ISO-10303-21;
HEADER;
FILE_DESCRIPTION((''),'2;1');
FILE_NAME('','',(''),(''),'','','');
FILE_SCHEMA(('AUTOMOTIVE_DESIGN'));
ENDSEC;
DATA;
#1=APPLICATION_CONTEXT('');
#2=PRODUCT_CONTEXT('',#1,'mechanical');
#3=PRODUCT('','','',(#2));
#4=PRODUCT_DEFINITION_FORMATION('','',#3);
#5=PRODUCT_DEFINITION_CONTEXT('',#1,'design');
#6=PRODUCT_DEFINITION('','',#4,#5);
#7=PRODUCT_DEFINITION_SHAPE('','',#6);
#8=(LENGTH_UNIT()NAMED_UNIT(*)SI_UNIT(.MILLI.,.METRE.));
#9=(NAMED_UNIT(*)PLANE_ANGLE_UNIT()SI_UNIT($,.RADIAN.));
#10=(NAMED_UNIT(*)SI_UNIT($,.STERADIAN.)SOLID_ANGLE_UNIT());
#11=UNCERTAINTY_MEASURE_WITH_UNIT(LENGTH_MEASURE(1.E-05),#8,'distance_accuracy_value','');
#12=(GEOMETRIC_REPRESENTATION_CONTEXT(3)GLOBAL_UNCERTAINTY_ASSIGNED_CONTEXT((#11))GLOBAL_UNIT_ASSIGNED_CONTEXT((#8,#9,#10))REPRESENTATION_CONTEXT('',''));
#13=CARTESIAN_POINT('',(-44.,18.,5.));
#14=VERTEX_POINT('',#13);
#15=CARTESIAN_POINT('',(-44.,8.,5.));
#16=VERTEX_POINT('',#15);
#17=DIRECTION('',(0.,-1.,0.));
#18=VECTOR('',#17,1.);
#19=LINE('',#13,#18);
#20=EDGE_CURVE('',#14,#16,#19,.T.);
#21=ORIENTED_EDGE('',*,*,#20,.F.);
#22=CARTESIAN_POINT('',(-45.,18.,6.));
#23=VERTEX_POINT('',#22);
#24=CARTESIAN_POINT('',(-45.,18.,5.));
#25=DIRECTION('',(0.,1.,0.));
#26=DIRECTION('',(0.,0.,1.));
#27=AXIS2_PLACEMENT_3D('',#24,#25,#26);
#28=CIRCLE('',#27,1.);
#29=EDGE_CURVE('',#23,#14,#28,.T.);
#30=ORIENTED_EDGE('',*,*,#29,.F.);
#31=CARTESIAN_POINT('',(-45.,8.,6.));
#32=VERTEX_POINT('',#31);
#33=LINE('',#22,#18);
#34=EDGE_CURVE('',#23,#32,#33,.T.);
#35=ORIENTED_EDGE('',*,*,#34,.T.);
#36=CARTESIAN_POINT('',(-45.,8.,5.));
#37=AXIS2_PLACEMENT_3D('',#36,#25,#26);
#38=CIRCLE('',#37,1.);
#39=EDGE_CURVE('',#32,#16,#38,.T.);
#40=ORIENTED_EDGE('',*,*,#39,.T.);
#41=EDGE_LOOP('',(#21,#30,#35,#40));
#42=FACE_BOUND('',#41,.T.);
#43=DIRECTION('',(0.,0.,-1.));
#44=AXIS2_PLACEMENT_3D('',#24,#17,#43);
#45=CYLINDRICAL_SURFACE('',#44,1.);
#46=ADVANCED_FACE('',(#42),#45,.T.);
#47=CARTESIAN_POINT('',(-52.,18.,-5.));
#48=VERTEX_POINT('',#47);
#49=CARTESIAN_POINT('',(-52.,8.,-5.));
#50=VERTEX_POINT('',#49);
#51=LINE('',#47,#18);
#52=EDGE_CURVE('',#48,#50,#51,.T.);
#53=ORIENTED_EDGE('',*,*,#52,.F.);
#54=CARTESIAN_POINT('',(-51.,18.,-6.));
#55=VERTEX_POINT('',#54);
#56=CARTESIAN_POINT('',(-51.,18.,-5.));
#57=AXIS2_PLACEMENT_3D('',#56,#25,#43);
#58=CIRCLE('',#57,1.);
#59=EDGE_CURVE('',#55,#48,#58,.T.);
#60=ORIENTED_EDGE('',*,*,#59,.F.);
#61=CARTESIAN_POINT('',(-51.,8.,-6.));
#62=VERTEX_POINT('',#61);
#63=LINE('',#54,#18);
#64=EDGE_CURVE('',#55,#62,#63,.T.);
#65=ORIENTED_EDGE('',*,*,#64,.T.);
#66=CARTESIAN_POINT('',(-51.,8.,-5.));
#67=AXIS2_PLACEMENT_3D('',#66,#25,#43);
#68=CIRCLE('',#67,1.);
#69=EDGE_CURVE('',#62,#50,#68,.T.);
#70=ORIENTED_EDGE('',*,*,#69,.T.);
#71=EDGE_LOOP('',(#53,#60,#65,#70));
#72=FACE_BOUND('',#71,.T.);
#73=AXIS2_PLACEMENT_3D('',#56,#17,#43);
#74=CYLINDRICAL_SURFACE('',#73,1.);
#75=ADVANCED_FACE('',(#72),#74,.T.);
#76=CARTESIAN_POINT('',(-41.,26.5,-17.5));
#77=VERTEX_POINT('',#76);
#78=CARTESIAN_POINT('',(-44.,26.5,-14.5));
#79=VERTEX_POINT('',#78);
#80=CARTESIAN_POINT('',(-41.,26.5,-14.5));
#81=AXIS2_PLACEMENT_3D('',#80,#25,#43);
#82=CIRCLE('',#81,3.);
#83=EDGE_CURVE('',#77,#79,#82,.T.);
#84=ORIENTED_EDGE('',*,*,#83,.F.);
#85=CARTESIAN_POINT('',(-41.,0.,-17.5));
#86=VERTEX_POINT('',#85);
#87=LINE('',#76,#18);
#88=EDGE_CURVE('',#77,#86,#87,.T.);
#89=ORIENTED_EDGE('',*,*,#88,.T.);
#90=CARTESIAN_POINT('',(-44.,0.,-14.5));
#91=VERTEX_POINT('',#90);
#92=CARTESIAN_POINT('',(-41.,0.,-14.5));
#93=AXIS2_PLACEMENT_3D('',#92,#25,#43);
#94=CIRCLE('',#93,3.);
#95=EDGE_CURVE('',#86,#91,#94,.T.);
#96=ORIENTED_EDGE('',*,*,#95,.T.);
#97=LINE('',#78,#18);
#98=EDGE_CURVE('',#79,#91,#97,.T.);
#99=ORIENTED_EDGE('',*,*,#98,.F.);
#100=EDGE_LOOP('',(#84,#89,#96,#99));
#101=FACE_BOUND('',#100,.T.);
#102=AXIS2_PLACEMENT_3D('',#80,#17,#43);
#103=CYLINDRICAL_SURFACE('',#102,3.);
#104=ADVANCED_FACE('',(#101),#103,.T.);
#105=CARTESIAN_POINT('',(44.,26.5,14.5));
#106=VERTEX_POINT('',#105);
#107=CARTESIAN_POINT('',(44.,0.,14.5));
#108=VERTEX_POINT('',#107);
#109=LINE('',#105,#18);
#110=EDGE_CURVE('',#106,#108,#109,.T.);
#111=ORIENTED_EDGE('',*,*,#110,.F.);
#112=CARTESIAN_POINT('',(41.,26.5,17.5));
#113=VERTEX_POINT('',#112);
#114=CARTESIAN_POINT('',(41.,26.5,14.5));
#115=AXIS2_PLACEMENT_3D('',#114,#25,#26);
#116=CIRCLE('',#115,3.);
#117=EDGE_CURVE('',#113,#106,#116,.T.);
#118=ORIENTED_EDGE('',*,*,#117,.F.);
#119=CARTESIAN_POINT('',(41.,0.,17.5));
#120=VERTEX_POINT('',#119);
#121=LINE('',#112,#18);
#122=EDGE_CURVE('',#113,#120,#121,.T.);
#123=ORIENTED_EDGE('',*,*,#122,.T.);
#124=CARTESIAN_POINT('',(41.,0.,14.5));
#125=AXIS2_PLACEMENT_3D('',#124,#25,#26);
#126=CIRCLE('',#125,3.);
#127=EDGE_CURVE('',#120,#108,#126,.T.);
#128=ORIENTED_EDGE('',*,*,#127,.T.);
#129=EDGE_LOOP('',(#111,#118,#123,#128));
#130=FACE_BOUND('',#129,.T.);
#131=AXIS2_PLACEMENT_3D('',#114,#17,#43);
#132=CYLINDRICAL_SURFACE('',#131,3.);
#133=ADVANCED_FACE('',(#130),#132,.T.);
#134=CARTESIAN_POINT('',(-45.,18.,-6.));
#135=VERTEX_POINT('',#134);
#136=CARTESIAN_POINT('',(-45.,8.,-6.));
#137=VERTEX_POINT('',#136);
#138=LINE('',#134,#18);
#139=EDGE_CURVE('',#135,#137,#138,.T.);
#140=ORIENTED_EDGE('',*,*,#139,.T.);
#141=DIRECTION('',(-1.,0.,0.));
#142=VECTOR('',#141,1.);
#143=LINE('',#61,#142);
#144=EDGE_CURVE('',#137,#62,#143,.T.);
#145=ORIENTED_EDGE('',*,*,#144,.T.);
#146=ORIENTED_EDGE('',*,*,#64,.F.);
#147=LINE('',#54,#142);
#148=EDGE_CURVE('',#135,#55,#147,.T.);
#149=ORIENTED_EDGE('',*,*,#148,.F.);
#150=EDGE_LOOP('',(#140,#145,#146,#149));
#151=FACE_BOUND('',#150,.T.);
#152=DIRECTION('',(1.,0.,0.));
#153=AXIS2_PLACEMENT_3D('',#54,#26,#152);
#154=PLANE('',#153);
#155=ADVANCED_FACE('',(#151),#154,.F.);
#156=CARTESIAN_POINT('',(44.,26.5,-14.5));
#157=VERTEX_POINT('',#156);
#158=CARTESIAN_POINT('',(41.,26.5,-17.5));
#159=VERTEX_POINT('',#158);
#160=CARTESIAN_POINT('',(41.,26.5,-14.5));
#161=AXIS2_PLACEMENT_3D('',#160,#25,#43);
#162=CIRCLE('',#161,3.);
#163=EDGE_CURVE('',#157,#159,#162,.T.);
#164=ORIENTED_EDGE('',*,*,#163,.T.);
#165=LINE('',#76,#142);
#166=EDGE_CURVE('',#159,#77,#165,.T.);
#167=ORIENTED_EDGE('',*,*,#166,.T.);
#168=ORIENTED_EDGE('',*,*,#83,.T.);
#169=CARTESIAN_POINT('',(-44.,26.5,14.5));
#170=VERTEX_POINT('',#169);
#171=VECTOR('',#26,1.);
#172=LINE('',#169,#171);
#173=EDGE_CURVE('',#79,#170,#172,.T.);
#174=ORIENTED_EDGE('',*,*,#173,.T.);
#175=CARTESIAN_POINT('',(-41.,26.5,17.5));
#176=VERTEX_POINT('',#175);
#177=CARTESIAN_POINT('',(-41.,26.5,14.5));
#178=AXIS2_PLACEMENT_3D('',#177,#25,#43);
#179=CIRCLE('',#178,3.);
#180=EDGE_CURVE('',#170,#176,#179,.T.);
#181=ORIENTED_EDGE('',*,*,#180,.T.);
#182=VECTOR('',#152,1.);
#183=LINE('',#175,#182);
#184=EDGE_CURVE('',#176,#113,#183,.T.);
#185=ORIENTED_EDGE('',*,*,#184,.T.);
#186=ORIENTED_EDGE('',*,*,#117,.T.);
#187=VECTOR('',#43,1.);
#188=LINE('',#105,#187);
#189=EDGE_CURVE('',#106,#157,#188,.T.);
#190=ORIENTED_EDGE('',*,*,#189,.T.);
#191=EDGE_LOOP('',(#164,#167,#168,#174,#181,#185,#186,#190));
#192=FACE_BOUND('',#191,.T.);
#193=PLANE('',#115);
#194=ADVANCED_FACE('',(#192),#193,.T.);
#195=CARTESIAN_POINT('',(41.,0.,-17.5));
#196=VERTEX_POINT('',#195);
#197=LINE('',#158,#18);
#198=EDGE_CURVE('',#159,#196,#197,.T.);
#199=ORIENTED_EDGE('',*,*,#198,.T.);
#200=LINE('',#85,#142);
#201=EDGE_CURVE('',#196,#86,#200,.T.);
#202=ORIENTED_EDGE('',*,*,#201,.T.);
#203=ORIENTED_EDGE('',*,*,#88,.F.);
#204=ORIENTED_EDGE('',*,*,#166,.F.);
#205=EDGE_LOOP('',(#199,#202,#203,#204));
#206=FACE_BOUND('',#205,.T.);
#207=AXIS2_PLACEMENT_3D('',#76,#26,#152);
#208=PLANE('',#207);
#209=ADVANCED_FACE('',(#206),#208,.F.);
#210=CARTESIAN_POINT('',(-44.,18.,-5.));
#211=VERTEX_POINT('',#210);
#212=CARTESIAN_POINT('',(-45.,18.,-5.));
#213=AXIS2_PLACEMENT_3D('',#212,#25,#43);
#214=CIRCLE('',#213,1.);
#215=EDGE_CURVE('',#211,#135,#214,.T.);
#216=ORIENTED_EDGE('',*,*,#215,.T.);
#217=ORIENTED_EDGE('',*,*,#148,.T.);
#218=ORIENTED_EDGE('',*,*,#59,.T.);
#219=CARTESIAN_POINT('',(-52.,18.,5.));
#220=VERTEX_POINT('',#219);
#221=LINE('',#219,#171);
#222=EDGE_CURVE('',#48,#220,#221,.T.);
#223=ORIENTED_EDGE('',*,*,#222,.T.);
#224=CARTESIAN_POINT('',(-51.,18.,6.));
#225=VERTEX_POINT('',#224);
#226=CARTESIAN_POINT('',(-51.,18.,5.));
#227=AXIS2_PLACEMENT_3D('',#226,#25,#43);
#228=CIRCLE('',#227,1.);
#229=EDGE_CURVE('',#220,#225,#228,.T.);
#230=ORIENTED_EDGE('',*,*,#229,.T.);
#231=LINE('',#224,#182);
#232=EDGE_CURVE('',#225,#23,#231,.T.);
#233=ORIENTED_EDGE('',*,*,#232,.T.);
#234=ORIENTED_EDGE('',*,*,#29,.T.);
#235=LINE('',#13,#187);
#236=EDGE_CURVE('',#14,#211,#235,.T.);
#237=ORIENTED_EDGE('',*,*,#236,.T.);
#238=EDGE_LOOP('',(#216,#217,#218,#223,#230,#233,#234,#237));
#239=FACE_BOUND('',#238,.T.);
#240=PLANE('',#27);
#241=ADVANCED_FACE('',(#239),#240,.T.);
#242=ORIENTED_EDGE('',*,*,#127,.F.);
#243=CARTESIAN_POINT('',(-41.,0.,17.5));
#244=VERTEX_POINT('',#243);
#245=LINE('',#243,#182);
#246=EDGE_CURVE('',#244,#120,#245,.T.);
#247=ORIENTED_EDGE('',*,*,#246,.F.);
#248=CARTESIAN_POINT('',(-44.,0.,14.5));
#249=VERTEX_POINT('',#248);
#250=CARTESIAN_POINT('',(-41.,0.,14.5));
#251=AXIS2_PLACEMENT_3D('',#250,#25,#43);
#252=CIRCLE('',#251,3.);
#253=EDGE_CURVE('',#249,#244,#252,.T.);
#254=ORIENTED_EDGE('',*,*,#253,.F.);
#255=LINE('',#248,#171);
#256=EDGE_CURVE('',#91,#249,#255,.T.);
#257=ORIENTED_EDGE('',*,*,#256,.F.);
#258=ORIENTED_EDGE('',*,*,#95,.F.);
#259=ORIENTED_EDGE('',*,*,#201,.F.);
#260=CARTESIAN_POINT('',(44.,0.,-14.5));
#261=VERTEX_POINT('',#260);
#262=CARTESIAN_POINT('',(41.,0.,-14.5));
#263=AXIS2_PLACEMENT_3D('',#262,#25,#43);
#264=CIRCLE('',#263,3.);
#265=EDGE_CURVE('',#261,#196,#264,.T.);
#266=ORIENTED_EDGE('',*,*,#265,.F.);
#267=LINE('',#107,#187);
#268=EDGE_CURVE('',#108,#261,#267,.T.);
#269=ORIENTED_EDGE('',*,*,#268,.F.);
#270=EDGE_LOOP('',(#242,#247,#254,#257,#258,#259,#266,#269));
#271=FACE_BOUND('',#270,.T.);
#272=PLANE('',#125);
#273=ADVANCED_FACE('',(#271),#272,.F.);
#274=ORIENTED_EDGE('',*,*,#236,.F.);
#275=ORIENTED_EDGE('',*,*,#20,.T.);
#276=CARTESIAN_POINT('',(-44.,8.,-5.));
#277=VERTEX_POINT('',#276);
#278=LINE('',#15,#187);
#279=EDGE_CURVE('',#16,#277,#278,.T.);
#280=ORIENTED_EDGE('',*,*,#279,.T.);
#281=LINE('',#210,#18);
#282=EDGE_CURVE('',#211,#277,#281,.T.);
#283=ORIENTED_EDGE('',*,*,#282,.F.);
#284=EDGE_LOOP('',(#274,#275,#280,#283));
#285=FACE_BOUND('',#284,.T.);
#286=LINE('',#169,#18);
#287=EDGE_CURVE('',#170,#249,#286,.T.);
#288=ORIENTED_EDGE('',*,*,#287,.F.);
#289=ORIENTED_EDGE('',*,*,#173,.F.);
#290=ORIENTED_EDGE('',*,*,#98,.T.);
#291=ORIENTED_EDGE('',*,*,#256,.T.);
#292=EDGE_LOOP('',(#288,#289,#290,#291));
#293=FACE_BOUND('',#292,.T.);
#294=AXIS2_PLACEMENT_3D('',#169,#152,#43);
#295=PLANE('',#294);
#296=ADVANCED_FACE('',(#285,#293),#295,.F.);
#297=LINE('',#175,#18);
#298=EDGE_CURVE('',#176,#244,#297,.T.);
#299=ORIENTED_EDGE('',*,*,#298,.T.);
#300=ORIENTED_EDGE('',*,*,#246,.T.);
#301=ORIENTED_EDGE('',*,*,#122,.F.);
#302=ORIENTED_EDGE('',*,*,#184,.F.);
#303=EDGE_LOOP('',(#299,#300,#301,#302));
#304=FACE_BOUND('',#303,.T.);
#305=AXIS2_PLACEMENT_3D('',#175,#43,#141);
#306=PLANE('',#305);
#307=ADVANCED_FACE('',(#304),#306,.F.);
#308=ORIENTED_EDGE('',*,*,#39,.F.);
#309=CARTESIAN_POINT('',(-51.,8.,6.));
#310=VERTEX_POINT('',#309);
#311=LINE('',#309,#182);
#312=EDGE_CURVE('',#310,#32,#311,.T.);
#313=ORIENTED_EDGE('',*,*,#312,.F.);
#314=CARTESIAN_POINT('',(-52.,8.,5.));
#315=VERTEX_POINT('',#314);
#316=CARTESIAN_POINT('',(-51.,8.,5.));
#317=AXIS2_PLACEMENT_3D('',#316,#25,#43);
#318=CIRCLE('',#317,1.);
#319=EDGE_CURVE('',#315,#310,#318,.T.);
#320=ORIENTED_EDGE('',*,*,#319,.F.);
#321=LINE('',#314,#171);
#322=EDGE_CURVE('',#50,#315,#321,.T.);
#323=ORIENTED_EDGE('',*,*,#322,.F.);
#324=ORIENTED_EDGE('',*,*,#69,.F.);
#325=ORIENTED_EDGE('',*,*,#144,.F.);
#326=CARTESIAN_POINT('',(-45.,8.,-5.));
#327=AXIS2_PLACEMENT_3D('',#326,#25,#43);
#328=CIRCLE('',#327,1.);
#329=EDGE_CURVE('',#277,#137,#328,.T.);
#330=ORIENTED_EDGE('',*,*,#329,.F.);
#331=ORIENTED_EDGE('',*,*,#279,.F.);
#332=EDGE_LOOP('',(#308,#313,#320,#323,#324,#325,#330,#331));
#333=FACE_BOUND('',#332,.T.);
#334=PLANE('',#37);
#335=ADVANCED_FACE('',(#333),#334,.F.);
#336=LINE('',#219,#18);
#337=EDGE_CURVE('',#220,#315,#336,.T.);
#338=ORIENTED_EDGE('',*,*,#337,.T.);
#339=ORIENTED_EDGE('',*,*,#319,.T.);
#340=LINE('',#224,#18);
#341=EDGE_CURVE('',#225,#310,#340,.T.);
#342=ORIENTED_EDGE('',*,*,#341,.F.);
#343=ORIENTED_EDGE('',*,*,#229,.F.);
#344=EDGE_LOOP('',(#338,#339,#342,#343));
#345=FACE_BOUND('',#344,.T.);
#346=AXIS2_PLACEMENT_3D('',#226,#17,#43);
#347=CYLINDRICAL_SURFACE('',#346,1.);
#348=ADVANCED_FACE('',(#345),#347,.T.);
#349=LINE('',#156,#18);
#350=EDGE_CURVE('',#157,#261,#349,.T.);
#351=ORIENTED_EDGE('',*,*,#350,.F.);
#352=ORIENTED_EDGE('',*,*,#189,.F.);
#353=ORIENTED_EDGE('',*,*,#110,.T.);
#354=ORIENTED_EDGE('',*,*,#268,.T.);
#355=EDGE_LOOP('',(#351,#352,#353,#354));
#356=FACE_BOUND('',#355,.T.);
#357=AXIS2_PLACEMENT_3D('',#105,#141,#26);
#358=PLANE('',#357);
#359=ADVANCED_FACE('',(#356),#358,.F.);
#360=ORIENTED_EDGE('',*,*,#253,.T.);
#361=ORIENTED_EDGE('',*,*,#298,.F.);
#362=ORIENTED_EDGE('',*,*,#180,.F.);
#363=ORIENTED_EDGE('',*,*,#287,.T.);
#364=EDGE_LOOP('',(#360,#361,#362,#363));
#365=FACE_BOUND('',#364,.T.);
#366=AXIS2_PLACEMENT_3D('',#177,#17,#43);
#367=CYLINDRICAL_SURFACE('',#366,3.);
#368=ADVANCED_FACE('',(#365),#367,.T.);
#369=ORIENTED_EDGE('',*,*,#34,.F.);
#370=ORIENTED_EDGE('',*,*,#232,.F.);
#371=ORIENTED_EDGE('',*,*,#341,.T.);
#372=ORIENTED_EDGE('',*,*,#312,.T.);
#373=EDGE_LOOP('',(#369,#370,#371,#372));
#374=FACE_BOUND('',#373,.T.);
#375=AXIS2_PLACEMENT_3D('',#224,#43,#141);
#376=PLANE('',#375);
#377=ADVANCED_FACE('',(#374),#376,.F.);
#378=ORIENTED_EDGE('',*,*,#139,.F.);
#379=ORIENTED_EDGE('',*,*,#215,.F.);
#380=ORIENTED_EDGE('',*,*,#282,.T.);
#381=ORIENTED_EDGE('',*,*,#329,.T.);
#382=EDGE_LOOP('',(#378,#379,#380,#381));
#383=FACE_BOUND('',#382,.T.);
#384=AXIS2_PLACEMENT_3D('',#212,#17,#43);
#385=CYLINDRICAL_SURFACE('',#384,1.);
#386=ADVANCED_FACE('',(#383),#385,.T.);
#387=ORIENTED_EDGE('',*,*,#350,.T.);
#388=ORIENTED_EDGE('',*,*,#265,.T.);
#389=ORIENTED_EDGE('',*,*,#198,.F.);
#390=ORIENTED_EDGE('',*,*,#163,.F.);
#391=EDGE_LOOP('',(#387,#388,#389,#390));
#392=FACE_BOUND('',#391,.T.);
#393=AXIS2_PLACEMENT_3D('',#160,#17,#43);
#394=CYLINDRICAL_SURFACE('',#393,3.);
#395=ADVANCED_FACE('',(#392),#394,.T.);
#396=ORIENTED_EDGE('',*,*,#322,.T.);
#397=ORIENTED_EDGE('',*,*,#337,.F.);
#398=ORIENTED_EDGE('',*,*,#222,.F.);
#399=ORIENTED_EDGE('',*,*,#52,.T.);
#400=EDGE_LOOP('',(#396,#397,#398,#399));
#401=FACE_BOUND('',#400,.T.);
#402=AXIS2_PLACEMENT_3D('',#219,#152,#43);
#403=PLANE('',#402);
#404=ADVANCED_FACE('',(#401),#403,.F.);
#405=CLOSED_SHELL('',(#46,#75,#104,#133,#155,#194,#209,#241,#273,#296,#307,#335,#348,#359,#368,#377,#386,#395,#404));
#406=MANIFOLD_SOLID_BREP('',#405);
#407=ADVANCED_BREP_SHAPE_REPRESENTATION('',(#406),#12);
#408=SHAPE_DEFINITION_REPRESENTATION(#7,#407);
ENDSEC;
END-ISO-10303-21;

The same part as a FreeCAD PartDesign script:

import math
import FreeCAD as App
import Part
import Sketcher
from FreeCAD import Vector

doc = App.newDocument("Part")
body = doc.addObject("PartDesign::Body", "Body")

# Sketch on XZ plane
sketch1 = body.newObject("Sketcher::SketchObject", "Sketch")
sketch1.AttachmentSupport = (doc.getObject("XZ_Plane"), [""])
sketch1.MapMode = "FlatFace"
sketch1.addGeometry([
    Part.LineSegment(Vector(-41, 17.5, 0), Vector(41, 17.5, 0)),  # 0
    Part.ArcOfCircle(Part.Circle(Vector(41, 14.5, 0), Vector(0, 0, 1), 3), math.radians(0), math.radians(90)),  # 1
    Part.LineSegment(Vector(44, 14.5, 0), Vector(44, -14.5, 0)),  # 2
    Part.ArcOfCircle(Part.Circle(Vector(41, -14.5, 0), Vector(0, 0, 1), 3), math.radians(-90), math.radians(0)),  # 3
    Part.LineSegment(Vector(41, -17.5, 0), Vector(-41, -17.5, 0)),  # 4
    Part.ArcOfCircle(Part.Circle(Vector(-41, -14.5, 0), Vector(0, 0, 1), 3), math.radians(180), math.radians(270)),  # 5
    Part.LineSegment(Vector(-44, -14.5, 0), Vector(-44, 14.5, 0)),  # 6
    Part.ArcOfCircle(Part.Circle(Vector(-41, 14.5, 0), Vector(0, 0, 1), 3), math.radians(90), math.radians(180)),  # 7
], False)
sketch1.addConstraint([
    Sketcher.Constraint("Tangent", 0, 2, 1, 2),
    Sketcher.Constraint("Tangent", 1, 1, 2, 1),
    Sketcher.Constraint("Tangent", 2, 2, 3, 2),
    Sketcher.Constraint("Tangent", 3, 1, 4, 1),
    Sketcher.Constraint("Tangent", 4, 2, 5, 2),
    Sketcher.Constraint("Tangent", 5, 1, 6, 1),
    Sketcher.Constraint("Tangent", 6, 2, 7, 2),
    Sketcher.Constraint("Tangent", 7, 1, 0, 1),
    Sketcher.Constraint("Horizontal", 0),
    Sketcher.Constraint("Vertical", 2),
    Sketcher.Constraint("Horizontal", 4),
    Sketcher.Constraint("Vertical", 6),
    Sketcher.Constraint("Equal", 1, 3),
    Sketcher.Constraint("Equal", 3, 5),
    Sketcher.Constraint("Equal", 5, 7),
    Sketcher.Constraint("Symmetric", 1, 3, 5, 3, -1, 1),
    Sketcher.Constraint("Radius", 1, 3.0),
    Sketcher.Constraint("DistanceX", 0, 1, 0, 2, 82.0),
    Sketcher.Constraint("DistanceY", 2, 2, 2, 1, 29.0),
])
pad1 = body.newObject("PartDesign::Pad", "Pad")
pad1.Profile = sketch1
pad1.Length = 26.5
pad1.Reversed = True

# Sketch on XZ plane
sketch2 = body.newObject("Sketcher::SketchObject", "Sketch001")
sketch2.AttachmentSupport = (doc.getObject("XZ_Plane"), [""])
sketch2.MapMode = "FlatFace"
sketch2.AttachmentOffset = App.Placement(Vector(0, 0, -8), App.Rotation())
sketch2.addGeometry([
    Part.LineSegment(Vector(-51, 6, 0), Vector(-45, 6, 0)),  # 0
    Part.ArcOfCircle(Part.Circle(Vector(-45, 5, 0), Vector(0, 0, 1), 1), math.radians(0), math.radians(90)),  # 1
    Part.LineSegment(Vector(-44, 5, 0), Vector(-44, -5, 0)),  # 2
    Part.ArcOfCircle(Part.Circle(Vector(-45, -5, 0), Vector(0, 0, 1), 1), math.radians(-90), math.radians(0)),  # 3
    Part.LineSegment(Vector(-45, -6, 0), Vector(-51, -6, 0)),  # 4
    Part.ArcOfCircle(Part.Circle(Vector(-51, -5, 0), Vector(0, 0, 1), 1), math.radians(-180), math.radians(-90)),  # 5
    Part.LineSegment(Vector(-52, -5, 0), Vector(-52, 5, 0)),  # 6
    Part.ArcOfCircle(Part.Circle(Vector(-51, 5, 0), Vector(0, 0, 1), 1), math.radians(90), math.radians(180)),  # 7
], False)
sketch2.addConstraint([
    Sketcher.Constraint("Tangent", 0, 2, 1, 2),
    Sketcher.Constraint("Tangent", 1, 1, 2, 1),
    Sketcher.Constraint("Tangent", 2, 2, 3, 2),
    Sketcher.Constraint("Tangent", 3, 1, 4, 1),
    Sketcher.Constraint("Tangent", 4, 2, 5, 2),
    Sketcher.Constraint("Tangent", 5, 1, 6, 1),
    Sketcher.Constraint("Tangent", 6, 2, 7, 2),
    Sketcher.Constraint("Tangent", 7, 1, 0, 1),
    Sketcher.Constraint("Horizontal", 0),
    Sketcher.Constraint("Vertical", 2),
    Sketcher.Constraint("Horizontal", 4),
    Sketcher.Constraint("Vertical", 6),
    Sketcher.Constraint("Equal", 1, 3),
    Sketcher.Constraint("Equal", 3, 5),
    Sketcher.Constraint("Equal", 5, 7),
    Sketcher.Constraint("Radius", 1, 1.0),
    Sketcher.Constraint("DistanceX", 0, 1, 0, 2, 6.0),
    Sketcher.Constraint("DistanceY", 2, 2, 2, 1, 10.0),
    Sketcher.Constraint("DistanceX", 1, 3, -1, 1, 45.0),
    Sketcher.Constraint("DistanceY", -1, 1, 1, 3, 5.0),
])
pad2 = body.newObject("PartDesign::Pad", "Pad001")
pad2.Profile = sketch2
pad2.Length = 10
pad2.Reversed = True

doc.recompute()
